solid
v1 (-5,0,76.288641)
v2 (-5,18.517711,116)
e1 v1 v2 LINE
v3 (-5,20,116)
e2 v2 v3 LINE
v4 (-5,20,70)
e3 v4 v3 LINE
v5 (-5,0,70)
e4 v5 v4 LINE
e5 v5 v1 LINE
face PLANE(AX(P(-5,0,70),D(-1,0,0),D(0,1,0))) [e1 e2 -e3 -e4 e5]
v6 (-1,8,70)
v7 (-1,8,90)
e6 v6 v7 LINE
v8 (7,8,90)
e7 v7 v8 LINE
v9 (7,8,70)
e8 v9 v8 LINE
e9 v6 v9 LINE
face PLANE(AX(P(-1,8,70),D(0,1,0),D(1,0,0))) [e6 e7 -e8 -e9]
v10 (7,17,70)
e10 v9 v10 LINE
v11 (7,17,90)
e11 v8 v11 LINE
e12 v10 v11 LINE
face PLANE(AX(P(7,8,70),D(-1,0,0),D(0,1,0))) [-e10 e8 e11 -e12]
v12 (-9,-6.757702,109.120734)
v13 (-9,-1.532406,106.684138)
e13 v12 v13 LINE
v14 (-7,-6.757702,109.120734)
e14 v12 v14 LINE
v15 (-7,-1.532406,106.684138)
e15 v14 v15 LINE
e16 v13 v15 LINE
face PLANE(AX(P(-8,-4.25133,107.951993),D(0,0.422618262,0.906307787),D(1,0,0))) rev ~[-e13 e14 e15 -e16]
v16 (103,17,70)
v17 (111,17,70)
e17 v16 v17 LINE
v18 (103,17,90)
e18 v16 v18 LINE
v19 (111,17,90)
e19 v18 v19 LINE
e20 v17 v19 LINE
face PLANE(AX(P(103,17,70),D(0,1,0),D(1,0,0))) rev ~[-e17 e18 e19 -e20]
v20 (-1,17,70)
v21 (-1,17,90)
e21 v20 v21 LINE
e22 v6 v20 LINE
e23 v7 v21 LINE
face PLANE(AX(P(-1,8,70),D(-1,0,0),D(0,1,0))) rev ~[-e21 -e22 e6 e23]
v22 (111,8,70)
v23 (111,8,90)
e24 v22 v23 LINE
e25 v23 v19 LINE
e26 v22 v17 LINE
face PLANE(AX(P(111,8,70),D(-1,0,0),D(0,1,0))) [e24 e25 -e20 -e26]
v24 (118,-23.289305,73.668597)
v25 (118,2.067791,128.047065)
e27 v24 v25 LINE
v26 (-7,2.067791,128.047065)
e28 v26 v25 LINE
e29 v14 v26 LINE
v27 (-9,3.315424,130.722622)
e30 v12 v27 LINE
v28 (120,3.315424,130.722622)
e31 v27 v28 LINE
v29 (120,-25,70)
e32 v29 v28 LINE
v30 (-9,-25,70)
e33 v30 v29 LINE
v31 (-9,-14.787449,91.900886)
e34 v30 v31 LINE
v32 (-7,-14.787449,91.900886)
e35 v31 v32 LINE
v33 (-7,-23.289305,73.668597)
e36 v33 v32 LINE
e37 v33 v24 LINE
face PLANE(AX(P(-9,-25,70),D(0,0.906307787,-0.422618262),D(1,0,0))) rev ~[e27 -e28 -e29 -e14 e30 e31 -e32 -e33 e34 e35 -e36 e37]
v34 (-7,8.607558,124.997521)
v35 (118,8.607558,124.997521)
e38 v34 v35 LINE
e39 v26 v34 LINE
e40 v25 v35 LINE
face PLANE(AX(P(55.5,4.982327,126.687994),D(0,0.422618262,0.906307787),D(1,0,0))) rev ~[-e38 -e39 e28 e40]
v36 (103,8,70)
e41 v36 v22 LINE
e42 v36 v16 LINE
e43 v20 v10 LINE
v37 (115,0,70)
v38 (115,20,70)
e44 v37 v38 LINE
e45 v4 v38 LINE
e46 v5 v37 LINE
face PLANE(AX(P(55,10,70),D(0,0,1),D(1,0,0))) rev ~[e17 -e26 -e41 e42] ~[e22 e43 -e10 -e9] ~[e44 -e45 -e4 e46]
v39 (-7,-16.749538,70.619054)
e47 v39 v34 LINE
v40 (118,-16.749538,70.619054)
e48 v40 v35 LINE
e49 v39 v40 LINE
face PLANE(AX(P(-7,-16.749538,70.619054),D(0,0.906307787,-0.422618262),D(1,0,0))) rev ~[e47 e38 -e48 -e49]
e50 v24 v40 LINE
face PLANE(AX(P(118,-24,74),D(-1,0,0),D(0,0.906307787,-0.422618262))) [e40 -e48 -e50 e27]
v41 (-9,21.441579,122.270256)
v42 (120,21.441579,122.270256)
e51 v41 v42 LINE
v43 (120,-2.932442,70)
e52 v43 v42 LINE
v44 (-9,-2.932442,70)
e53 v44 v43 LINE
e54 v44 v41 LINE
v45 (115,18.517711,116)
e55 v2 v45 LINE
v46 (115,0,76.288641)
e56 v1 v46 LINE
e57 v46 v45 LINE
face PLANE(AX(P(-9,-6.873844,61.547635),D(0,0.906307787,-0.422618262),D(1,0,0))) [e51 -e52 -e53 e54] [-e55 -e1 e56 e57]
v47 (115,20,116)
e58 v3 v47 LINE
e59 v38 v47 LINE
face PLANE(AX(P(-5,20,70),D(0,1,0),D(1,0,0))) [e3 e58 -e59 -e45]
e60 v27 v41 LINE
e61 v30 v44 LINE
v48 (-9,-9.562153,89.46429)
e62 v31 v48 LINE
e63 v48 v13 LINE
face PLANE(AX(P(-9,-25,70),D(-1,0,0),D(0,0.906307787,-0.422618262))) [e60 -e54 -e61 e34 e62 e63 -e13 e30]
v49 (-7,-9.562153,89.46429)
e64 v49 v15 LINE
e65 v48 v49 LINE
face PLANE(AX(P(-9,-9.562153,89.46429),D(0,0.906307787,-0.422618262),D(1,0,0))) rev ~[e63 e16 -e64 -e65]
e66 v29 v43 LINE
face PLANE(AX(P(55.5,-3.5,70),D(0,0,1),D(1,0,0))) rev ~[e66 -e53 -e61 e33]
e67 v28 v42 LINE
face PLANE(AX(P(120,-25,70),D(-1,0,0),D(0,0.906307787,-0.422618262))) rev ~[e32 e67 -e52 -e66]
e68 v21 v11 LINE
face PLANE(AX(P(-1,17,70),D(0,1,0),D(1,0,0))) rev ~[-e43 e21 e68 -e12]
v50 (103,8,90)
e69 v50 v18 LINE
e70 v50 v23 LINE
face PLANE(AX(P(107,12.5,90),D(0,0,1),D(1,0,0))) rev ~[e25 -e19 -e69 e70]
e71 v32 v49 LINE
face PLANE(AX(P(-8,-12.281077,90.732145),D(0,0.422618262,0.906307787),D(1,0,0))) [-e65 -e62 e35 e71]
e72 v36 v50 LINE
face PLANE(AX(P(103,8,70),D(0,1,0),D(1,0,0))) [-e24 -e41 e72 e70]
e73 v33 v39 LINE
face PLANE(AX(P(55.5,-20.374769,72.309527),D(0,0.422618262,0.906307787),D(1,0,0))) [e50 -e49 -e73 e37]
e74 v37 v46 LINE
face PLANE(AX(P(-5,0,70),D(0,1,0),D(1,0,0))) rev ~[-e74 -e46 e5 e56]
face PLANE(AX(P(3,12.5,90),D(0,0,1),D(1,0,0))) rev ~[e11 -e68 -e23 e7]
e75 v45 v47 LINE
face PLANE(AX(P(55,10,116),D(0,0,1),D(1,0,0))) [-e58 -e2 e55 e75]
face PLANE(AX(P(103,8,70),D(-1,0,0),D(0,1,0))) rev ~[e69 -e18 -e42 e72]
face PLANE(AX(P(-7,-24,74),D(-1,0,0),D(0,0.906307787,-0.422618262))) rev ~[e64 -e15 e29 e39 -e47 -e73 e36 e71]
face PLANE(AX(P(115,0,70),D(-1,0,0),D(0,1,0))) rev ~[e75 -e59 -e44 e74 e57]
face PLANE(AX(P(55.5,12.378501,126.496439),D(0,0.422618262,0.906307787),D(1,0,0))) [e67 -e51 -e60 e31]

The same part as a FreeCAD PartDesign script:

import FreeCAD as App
import Part
import Sketcher
from FreeCAD import Vector
Q = App.Units.Quantity


def add_polygon(sketch, points):
    """Adds a closed chain of lines whose ends are joined by coincident constraints."""
    first, n = sketch.GeometryCount, len(points)
    for a, b in zip(points, points[1:] + points[:1]):
        sketch.addGeometry(Part.LineSegment(App.Vector(*a, 0), App.Vector(*b, 0)), False)
    for i in range(n):
        sketch.addConstraint(Sketcher.Constraint("Coincident", first + i, 2, first + (i + 1) % n, 1))

doc = App.newDocument("Part")
params = doc.addObject("Spreadsheet::Sheet", "Params")
for row, (alias, value) in enumerate([
    ("sketch1_width", "2 mm"),
    ("sketch1_height", "6 mm"),
    ("pad1_length", "19 mm"),
    ("sketch2_width", "8 mm"),
    ("sketch2_height", "9 mm"),
    ("pad2_length", "20 mm"),
    ("sketch3_width", "125 mm"),
    ("sketch3_height", "8 mm"),
    ("pad3_length", "60 mm"),
    ("sketch4_width", "129 mm"),
    ("sketch4_height", "47 mm"),
    ("pad4_length", "10 mm"),
    ("sketch5_width", "8 mm"),
    ("sketch5_height", "9 mm"),
    ("pad5_length", "20 mm"),
    ("sketch6_width", "120 mm"),
    ("sketch6_height", "20 mm"),
    ("pad6_length", "46 mm"),
    ("sketch7_width", "129 mm"),
    ("sketch7_height", "20 mm"),
    ("pad7_length", "67 mm"),
], start=1):
    params.set(f"A{row}", alias)
    params.set(f"B{row}", "=" + value)
    params.setAlias(f"B{row}", alias)

body = doc.addObject("PartDesign::Body", "Body")

sketch1 = body.newObject("Sketcher::SketchObject", "Sketch")
sketch1.AttachmentSupport = (doc.getObject("XY_Plane"), [""])
sketch1.MapMode = "FlatFace"
add_polygon(sketch1, [(0, 6), (0, 0), (2, 0), (2, 6)])
sketch1.addConstraint(Sketcher.Constraint("Vertical", 0))
sketch1.addConstraint(Sketcher.Constraint("Horizontal", 1))
sketch1.addConstraint(Sketcher.Constraint("Vertical", 2))
sketch1.addConstraint(Sketcher.Constraint("Horizontal", 3))
sketch1.addConstraint(Sketcher.Constraint("Coincident", 0, 2, -1, 1))
sketch1.addConstraint(Sketcher.Constraint("DistanceX", 1, 1, 1, 2, Q("2 mm")))
sketch1.addConstraint(Sketcher.Constraint("DistanceY", 0, 2, 0, 1, Q("6 mm")))
sketch1.setExpression("Constraints[9]", "Params.sketch1_width")
sketch1.setExpression("Constraints[10]", "Params.sketch1_height")
pad1 = body.newObject("PartDesign::Pad", "Pad")
pad1.Profile = sketch1
pad1.setExpression("Length", "Params.pad1_length")
body2 = doc.addObject("PartDesign::Body", "Body001")
doc.recompute()

body.Placement = App.Placement(Vector(-9, -15, 92), App.Rotation(Vector(-1, 0, 0), 25))
boolean = body2.newObject("PartDesign::Boolean", "Boolean")
boolean.Type = "Fuse"
boolean.addObjects([body])
body3 = doc.addObject("PartDesign::Body", "Body002")

sketch2 = body3.newObject("Sketcher::SketchObject", "Sketch001")
sketch2.AttachmentSupport = (doc.getObject("XY_Plane002"), [""])
sketch2.MapMode = "FlatFace"
sketch2.AttachmentOffset = App.Placement(Vector(0, 0, 70), App.Rotation())
add_polygon(sketch2, [(103, 17), (103, 8), (111, 8), (111, 17)])
sketch2.addConstraint(Sketcher.Constraint("Vertical", 0))
sketch2.addConstraint(Sketcher.Constraint("Horizontal", 1))
sketch2.addConstraint(Sketcher.Constraint("Vertical", 2))
sketch2.addConstraint(Sketcher.Constraint("Horizontal", 3))
sketch2.addConstraint(Sketcher.Constraint("DistanceX", 1, 1, 1, 2, Q("8 mm")))
sketch2.addConstraint(Sketcher.Constraint("DistanceY", 0, 2, 0, 1, Q("9 mm")))
sketch2.addConstraint(Sketcher.Constraint("DistanceX", -1, 1, 0, 2, Q("103 mm")))
sketch2.addConstraint(Sketcher.Constraint("DistanceY", -1, 1, 0, 2, Q("8 mm")))
sketch2.setExpression("Constraints[8]", "Params.sketch2_width")
sketch2.setExpression("Constraints[9]", "Params.sketch2_height")
pad2 = body3.newObject("PartDesign::Pad", "Pad001")
pad2.Profile = sketch2
pad2.setExpression("Length", "Params.pad2_length")
body4 = doc.addObject("PartDesign::Body", "Body003")

sketch3 = body4.newObject("Sketcher::SketchObject", "Sketch002")
sketch3.AttachmentSupport = (doc.getObject("XY_Plane003"), [""])
sketch3.MapMode = "FlatFace"
add_polygon(sketch3, [(0, 8), (0, 0), (125, 0), (125, 8)])
sketch3.addConstraint(Sketcher.Constraint("Vertical", 0))
sketch3.addConstraint(Sketcher.Constraint("Horizontal", 1))
sketch3.addConstraint(Sketcher.Constraint("Vertical", 2))
sketch3.addConstraint(Sketcher.Constraint("Horizontal", 3))
sketch3.addConstraint(Sketcher.Constraint("Coincident", 0, 2, -1, 1))
sketch3.addConstraint(Sketcher.Constraint("DistanceX", 1, 1, 1, 2, Q("125 mm")))
sketch3.addConstraint(Sketcher.Constraint("DistanceY", 0, 2, 0, 1, Q("8 mm")))
sketch3.setExpression("Constraints[9]", "Params.sketch3_width")
sketch3.setExpression("Constraints[10]", "Params.sketch3_height")
pad3 = body4.newObject("PartDesign::Pad", "Pad002")
pad3.Profile = sketch3
pad3.setExpression("Length", "Params.pad3_length")
body5 = doc.addObject("PartDesign::Body", "Body004")
doc.recompute()

body4.Placement = App.Placement(Vector(-7, -24, 74), App.Rotation(Vector(-1, 0, 0), 25))
boolean2 = body5.newObject("PartDesign::Boolean", "Boolean001")
boolean2.Type = "Fuse"
boolean2.addObjects([body4])
body6 = doc.addObject("PartDesign::Body", "Body005")

sketch4 = body6.newObject("Sketcher::SketchObject", "Sketch003")
sketch4.AttachmentSupport = (doc.getObject("XY_Plane005"), [""])
sketch4.MapMode = "FlatFace"
sketch4.AttachmentOffset = App.Placement(Vector(0, 0, 60), App.Rotation())
add_polygon(sketch4, [(-9, 20), (-9, -27), (120, -27), (120, 20)])
sketch4.addConstraint(Sketcher.Constraint("Vertical", 0))
sketch4.addConstraint(Sketcher.Constraint("Horizontal", 1))
sketch4.addConstraint(Sketcher.Constraint("Vertical", 2))
sketch4.addConstraint(Sketcher.Constraint("Horizontal", 3))
sketch4.addConstraint(Sketcher.Constraint("DistanceX", 1, 1, 1, 2, Q("129 mm")))
sketch4.addConstraint(Sketcher.Constraint("DistanceY", 0, 2, 0, 1, Q("47 mm")))
sketch4.addConstraint(Sketcher.Constraint("DistanceX", 0, 2, -1, 1, Q("9 mm")))
sketch4.addConstraint(Sketcher.Constraint("DistanceY", 0, 2, -1, 1, Q("27 mm")))
sketch4.setExpression("Constraints[8]", "Params.sketch4_width")
sketch4.setExpression("Constraints[9]", "Params.sketch4_height")
pad4 = body6.newObject("PartDesign::Pad", "Pad003")
pad4.Profile = sketch4
pad4.setExpression("Length", "Params.pad4_length")
body7 = doc.addObject("PartDesign::Body", "Body006")
body7.AllowCompound = True

sketch5 = body7.newObject("Sketcher::SketchObject", "Sketch004")
sketch5.AttachmentSupport = (doc.getObject("XY_Plane006"), [""])
sketch5.MapMode = "FlatFace"
sketch5.AttachmentOffset = App.Placement(Vector(0, 0, 70), App.Rotation())
add_polygon(sketch5, [(-1, 17), (-1, 8), (7, 8), (7, 17)])
sketch5.addConstraint(Sketcher.Constraint("Vertical", 0))
sketch5.addConstraint(Sketcher.Constraint("Horizontal", 1))
sketch5.addConstraint(Sketcher.Constraint("Vertical", 2))
sketch5.addConstraint(Sketcher.Constraint("Horizontal", 3))
sketch5.addConstraint(Sketcher.Constraint("DistanceX", 1, 1, 1, 2, Q("8 mm")))
sketch5.addConstraint(Sketcher.Constraint("DistanceY", 0, 2, 0, 1, Q("9 mm")))
sketch5.addConstraint(Sketcher.Constraint("DistanceX", 0, 2, -1, 1, Q("1 mm")))
sketch5.addConstraint(Sketcher.Constraint("DistanceY", -1, 1, 0, 2, Q("8 mm")))
sketch5.setExpression("Constraints[8]", "Params.sketch5_width")
sketch5.setExpression("Constraints[9]", "Params.sketch5_height")
pad5 = body7.newObject("PartDesign::Pad", "Pad004")
pad5.Profile = sketch5
pad5.setExpression("Length", "Params.pad5_length")
doc.recompute()

boolean3 = body7.newObject("PartDesign::Boolean", "Boolean002")
boolean3.Type = "Fuse"
boolean3.addObjects([body3])
doc.recompute()

boolean4 = body7.newObject("PartDesign::Boolean", "Boolean003")
boolean4.Type = "Fuse"
boolean4.addObjects([body5])
doc.recompute()

boolean5 = body7.newObject("PartDesign::Boolean", "Boolean004")
boolean5.Type = "Fuse"
boolean5.addObjects([body6])
body8 = doc.addObject("PartDesign::Body", "Body007")

sketch6 = body8.newObject("Sketcher::SketchObject", "Sketch005")
sketch6.AttachmentSupport = (doc.getObject("XY_Plane007"), [""])
sketch6.MapMode = "FlatFace"
sketch6.AttachmentOffset = App.Placement(Vector(0, 0, 70), App.Rotation())
add_polygon(sketch6, [(-5, 20), (-5, 0), (115, 0), (115, 20)])
sketch6.addConstraint(Sketcher.Constraint("Vertical", 0))
sketch6.addConstraint(Sketcher.Constraint("Horizontal", 1))
sketch6.addConstraint(Sketcher.Constraint("Vertical", 2))
sketch6.addConstraint(Sketcher.Constraint("Horizontal", 3))
sketch6.addConstraint(Sketcher.Constraint("PointOnObject", 0, 2, -1))
sketch6.addConstraint(Sketcher.Constraint("DistanceX", 1, 1, 1, 2, Q("120 mm")))
sketch6.addConstraint(Sketcher.Constraint("DistanceY", 0, 2, 0, 1, Q("20 mm")))
sketch6.addConstraint(Sketcher.Constraint("DistanceX", 0, 2, -1, 1, Q("5 mm")))
sketch6.setExpression("Constraints[9]", "Params.sketch6_width")
sketch6.setExpression("Constraints[10]", "Params.sketch6_height")
pad6 = body8.newObject("PartDesign::Pad", "Pad005")
pad6.Profile = sketch6
pad6.setExpression("Length", "Params.pad6_length")
body9 = doc.addObject("PartDesign::Body", "Body008")

sketch7 = body9.newObject("Sketcher::SketchObject", "Sketch006")
sketch7.AttachmentSupport = (doc.getObject("XY_Plane008"), [""])
sketch7.MapMode = "FlatFace"
add_polygon(sketch7, [(0, 20), (0, 0), (129, 0), (129, 20)])
sketch7.addConstraint(Sketcher.Constraint("Vertical", 0))
sketch7.addConstraint(Sketcher.Constraint("Horizontal", 1))
sketch7.addConstraint(Sketcher.Constraint("Vertical", 2))
sketch7.addConstraint(Sketcher.Constraint("Horizontal", 3))
sketch7.addConstraint(Sketcher.Constraint("Coincident", 0, 2, -1, 1))
sketch7.addConstraint(Sketcher.Constraint("DistanceX", 1, 1, 1, 2, Q("129 mm")))
sketch7.addConstraint(Sketcher.Constraint("DistanceY", 0, 2, 0, 1, Q("20 mm")))
sketch7.setExpression("Constraints[9]", "Params.sketch7_width")
sketch7.setExpression("Constraints[10]", "Params.sketch7_height")
pad7 = body9.newObject("PartDesign::Pad", "Pad006")
pad7.Profile = sketch7
pad7.setExpression("Length", "Params.pad7_length")
body10 = doc.addObject("PartDesign::Body", "Body009")
doc.recompute()

body9.Placement = App.Placement(Vector(-9, -25, 70), App.Rotation(Vector(-1, 0, 0), 25))
boolean6 = body10.newObject("PartDesign::Boolean", "Boolean005")
boolean6.Type = "Fuse"
boolean6.addObjects([body9])
doc.recompute()

boolean7 = body10.newObject("PartDesign::Boolean", "Boolean006")
boolean7.Type = "Fuse"
boolean7.addObjects([body8])
doc.recompute()

boolean8 = body10.newObject("PartDesign::Boolean", "Boolean007")
boolean8.Type = "Cut"
boolean8.addObjects([body7])
doc.recompute()

boolean9 = body10.newObject("PartDesign::Boolean", "Boolean008")
boolean9.Type = "Cut"
boolean9.addObjects([body2])

doc.recompute()
